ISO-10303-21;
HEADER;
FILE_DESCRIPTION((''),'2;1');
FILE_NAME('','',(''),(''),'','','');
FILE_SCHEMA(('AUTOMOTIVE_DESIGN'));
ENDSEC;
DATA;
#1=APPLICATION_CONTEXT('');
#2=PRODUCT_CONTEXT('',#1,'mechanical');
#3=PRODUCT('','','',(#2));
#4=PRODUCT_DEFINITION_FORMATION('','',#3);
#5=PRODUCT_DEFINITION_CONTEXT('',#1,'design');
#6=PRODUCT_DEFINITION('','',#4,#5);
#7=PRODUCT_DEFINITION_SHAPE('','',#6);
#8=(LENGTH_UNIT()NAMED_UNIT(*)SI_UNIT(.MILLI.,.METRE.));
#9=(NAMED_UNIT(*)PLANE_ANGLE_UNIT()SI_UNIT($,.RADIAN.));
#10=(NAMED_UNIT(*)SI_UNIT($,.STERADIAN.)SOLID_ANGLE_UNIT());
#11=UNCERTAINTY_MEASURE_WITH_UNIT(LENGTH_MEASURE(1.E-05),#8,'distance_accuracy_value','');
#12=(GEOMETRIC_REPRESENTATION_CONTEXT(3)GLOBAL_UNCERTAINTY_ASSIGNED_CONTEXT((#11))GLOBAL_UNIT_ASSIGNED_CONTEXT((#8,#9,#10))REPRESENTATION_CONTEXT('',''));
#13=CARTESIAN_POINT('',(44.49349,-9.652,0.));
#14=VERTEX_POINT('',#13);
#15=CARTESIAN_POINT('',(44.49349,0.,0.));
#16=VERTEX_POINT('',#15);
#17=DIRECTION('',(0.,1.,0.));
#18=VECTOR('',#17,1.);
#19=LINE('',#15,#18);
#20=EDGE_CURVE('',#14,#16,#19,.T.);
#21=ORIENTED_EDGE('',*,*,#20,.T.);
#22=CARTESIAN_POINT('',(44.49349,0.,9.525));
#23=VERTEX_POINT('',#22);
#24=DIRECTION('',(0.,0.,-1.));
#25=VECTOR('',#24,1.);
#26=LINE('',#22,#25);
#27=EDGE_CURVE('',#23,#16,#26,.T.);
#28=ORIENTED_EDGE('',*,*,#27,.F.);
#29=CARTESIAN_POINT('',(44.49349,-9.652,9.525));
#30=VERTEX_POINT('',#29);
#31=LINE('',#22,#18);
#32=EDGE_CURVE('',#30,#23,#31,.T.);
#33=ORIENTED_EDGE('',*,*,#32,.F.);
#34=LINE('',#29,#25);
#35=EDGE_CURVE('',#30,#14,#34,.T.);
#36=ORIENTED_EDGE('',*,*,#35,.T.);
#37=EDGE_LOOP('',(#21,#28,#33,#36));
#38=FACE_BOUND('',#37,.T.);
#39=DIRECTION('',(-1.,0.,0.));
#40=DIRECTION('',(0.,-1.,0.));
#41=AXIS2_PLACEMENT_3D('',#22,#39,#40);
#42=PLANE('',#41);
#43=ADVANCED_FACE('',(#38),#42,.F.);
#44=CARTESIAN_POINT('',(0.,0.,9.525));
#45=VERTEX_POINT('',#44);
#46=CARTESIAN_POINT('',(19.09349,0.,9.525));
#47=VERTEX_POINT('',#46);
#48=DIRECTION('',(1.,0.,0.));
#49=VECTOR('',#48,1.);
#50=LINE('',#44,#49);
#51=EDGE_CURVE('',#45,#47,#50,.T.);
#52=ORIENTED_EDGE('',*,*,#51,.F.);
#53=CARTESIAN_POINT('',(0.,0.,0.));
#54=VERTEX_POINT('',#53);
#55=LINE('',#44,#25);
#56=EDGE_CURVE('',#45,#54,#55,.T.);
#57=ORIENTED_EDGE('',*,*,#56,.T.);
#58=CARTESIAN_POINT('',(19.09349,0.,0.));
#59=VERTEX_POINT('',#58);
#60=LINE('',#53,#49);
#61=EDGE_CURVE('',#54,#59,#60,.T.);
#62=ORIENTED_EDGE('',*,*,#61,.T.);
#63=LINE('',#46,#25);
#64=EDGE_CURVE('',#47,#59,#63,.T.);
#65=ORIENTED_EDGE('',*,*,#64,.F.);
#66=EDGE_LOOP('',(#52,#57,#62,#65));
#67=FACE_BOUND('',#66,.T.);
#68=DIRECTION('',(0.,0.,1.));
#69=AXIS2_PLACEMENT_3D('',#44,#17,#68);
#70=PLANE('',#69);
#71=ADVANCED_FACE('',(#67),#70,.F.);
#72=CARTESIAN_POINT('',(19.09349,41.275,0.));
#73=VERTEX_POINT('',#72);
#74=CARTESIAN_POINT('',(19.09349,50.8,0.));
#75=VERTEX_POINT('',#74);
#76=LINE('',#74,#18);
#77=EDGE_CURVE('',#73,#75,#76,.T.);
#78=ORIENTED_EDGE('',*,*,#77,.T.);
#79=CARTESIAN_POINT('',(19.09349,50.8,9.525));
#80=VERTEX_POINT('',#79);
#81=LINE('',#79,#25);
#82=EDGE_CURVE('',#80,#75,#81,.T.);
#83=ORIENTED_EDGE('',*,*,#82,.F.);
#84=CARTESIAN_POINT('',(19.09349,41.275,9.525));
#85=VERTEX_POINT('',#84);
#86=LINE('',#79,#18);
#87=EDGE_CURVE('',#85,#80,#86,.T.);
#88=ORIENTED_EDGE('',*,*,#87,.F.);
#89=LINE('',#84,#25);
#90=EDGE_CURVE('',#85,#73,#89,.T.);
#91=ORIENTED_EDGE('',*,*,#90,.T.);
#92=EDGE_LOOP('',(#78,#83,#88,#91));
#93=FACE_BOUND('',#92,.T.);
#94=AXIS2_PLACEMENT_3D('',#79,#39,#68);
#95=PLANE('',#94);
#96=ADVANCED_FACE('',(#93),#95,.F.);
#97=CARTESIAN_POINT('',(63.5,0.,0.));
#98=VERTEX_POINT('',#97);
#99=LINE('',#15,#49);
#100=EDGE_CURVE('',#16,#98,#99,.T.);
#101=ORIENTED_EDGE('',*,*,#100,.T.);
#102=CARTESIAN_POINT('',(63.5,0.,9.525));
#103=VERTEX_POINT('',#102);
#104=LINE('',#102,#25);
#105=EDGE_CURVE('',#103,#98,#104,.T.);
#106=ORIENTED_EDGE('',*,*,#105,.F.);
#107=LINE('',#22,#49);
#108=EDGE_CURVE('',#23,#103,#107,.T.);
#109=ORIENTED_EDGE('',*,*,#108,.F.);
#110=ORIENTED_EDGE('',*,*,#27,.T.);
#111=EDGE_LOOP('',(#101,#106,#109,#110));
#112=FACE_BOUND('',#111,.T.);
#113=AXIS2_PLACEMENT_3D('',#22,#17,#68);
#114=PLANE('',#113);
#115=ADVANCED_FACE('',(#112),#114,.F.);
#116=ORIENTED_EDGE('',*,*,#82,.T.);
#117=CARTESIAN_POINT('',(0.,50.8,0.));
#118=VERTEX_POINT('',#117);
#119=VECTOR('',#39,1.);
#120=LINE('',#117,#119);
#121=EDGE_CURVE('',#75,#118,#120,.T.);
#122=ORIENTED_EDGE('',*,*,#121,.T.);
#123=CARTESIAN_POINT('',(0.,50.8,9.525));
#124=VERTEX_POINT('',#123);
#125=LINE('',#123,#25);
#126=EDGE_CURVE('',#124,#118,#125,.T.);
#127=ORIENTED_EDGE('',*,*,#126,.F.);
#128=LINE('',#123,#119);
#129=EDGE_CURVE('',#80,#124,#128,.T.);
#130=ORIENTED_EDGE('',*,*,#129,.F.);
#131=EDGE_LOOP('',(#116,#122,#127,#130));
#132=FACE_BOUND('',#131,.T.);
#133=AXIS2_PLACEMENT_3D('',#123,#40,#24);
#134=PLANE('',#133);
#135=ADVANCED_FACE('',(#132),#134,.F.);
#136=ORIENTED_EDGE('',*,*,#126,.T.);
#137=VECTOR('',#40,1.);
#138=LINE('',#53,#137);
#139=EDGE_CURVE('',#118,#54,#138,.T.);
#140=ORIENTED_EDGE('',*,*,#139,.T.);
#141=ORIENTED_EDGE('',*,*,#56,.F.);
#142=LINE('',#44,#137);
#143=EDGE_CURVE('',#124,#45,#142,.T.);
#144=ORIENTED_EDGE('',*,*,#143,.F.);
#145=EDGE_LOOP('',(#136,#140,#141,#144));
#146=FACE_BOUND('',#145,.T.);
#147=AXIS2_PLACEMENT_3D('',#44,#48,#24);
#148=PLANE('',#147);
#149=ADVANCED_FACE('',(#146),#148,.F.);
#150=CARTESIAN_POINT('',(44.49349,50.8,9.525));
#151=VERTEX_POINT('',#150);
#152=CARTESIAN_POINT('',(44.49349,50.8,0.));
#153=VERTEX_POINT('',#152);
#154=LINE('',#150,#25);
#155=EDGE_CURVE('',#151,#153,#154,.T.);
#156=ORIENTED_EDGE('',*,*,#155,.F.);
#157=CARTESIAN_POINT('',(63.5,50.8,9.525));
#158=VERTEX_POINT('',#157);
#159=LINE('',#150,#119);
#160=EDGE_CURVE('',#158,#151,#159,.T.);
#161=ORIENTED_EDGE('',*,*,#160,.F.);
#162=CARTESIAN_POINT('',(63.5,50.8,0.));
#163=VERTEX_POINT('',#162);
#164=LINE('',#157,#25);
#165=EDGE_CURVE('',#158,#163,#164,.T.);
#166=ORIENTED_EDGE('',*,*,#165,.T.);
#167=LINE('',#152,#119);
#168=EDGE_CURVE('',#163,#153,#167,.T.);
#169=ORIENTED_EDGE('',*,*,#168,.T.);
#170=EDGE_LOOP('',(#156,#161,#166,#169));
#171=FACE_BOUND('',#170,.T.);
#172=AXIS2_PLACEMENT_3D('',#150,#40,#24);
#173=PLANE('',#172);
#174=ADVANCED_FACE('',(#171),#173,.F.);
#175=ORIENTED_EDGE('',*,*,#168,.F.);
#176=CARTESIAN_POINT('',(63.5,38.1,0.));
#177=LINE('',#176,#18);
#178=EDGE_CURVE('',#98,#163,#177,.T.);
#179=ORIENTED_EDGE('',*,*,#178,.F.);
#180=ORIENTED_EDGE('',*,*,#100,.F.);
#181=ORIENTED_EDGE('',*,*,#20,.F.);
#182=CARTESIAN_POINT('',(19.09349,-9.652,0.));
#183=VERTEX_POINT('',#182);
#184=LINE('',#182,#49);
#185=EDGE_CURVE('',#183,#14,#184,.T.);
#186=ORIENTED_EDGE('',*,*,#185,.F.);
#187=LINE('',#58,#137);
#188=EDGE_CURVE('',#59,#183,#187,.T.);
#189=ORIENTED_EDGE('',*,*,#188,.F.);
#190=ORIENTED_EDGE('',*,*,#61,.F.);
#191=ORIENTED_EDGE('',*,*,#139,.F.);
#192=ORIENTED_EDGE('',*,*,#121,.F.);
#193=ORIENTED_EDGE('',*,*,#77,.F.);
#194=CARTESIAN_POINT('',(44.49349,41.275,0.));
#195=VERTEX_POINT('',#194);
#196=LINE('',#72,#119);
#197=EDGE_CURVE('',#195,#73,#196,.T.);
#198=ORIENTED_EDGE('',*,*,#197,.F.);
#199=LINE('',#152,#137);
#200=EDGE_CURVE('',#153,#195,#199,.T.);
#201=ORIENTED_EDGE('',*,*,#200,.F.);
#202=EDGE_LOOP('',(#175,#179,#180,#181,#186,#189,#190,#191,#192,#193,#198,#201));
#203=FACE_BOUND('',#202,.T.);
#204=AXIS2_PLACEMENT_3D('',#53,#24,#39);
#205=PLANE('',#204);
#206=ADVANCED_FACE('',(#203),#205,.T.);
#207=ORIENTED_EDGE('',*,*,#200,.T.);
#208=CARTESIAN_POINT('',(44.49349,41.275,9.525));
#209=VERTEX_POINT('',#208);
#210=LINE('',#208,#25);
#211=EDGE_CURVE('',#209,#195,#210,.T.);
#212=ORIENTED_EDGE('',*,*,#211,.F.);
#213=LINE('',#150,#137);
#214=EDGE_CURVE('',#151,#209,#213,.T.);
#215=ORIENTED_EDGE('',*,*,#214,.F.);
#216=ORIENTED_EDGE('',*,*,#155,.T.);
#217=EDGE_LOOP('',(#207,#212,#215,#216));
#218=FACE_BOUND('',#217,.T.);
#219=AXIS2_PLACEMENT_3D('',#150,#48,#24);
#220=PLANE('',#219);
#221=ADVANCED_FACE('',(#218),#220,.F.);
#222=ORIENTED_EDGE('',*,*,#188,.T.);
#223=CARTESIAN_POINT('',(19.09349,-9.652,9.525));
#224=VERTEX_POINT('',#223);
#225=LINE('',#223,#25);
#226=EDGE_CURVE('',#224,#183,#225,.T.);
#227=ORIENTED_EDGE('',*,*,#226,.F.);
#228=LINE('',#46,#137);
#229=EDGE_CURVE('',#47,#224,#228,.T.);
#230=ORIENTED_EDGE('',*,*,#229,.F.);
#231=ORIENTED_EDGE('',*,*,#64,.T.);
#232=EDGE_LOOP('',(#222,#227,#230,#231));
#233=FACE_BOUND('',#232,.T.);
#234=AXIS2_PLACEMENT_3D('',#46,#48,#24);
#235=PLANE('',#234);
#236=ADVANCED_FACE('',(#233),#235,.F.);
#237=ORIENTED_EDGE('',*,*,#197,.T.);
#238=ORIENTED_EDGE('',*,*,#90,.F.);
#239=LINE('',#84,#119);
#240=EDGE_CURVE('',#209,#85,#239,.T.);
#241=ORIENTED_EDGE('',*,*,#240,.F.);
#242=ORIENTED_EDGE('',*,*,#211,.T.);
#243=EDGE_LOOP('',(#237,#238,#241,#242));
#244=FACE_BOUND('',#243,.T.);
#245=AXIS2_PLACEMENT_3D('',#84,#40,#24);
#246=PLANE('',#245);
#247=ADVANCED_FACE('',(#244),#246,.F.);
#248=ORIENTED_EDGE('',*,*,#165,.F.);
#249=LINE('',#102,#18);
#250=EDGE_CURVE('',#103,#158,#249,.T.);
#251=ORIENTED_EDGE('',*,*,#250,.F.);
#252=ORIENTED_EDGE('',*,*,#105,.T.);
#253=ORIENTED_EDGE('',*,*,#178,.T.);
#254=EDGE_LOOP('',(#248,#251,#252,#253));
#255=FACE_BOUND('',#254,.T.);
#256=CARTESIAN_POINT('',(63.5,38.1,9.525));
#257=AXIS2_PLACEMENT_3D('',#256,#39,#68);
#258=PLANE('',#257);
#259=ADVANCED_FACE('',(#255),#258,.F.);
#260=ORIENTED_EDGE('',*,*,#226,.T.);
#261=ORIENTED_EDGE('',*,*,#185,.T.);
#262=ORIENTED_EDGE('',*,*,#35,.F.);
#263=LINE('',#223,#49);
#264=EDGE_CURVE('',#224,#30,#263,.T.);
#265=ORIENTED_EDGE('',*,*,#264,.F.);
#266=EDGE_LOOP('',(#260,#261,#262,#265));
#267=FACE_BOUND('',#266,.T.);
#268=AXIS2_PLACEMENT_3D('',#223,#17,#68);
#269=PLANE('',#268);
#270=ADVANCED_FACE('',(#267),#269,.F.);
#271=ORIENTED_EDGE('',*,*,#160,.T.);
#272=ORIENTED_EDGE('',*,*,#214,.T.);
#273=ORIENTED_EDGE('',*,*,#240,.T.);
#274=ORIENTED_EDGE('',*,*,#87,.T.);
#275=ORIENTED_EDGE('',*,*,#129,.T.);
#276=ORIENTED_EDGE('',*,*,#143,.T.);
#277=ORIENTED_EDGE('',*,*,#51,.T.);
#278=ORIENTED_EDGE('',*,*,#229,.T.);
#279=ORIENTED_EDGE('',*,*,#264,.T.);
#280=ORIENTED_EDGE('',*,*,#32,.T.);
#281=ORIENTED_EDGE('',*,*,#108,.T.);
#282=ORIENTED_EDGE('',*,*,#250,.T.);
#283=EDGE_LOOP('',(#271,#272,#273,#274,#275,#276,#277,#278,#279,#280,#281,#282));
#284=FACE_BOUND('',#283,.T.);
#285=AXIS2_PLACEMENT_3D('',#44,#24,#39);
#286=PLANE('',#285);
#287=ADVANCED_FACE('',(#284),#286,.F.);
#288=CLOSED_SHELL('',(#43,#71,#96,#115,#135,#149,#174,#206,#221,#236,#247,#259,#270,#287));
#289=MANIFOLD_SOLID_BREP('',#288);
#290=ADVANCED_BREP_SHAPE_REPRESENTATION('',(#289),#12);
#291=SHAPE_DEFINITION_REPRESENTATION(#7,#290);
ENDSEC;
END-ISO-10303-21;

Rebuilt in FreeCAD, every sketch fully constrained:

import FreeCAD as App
import Part
import Sketcher

V = App.Vector
Q = App.Units.Quantity

doc = App.newDocument("Part")
body = doc.addObject("PartDesign::Body", "Body")

# Sketch on XY plane
sketch1 = doc.addObject("Sketcher::SketchObject", "Sketch")
body.addObject(sketch1)
sketch1.AttachmentSupport = (doc.XY_Plane, [""])
sketch1.MapMode = "FlatFace"
sketch1.addGeometry([
    Part.LineSegment(V(0, 0, 0), V(19, 0, 0)),  # 0
    Part.LineSegment(V(19, 0, 0), V(19, -10, 0)),  # 1
    Part.LineSegment(V(19, -10, 0), V(44, -10, 0)),  # 2
    Part.LineSegment(V(44, -10, 0), V(44, 0, 0)),  # 3
    Part.LineSegment(V(44, 0, 0), V(64, 0, 0)),  # 4
    Part.LineSegment(V(64, 0, 0), V(64, 51, 0)),  # 5
    Part.LineSegment(V(64, 51, 0), V(44, 51, 0)),  # 6
    Part.LineSegment(V(44, 51, 0), V(44, 41, 0)),  # 7
    Part.LineSegment(V(44, 41, 0), V(19, 41, 0)),  # 8
    Part.LineSegment(V(19, 41, 0), V(19, 51, 0)),  # 9
    Part.LineSegment(V(19, 51, 0), V(0, 51, 0)),  # 10
    Part.LineSegment(V(0, 51, 0), V(0, 0, 0)),  # 11
], False)
sketch1.addConstraint([
    Sketcher.Constraint("Coincident", 0, 2, 1, 1),
    Sketcher.Constraint("Coincident", 1, 2, 2, 1),
    Sketcher.Constraint("Coincident", 2, 2, 3, 1),
    Sketcher.Constraint("Coincident", 3, 2, 4, 1),
    Sketcher.Constraint("Coincident", 4, 2, 5, 1),
    Sketcher.Constraint("Coincident", 5, 2, 6, 1),
    Sketcher.Constraint("Coincident", 6, 2, 7, 1),
    Sketcher.Constraint("Coincident", 7, 2, 8, 1),
    Sketcher.Constraint("Coincident", 8, 2, 9, 1),
    Sketcher.Constraint("Coincident", 9, 2, 10, 1),
    Sketcher.Constraint("Coincident", 10, 2, 11, 1),
    Sketcher.Constraint("Coincident", 11, 2, 0, 1),
    Sketcher.Constraint("Horizontal", 0),
    Sketcher.Constraint("Vertical", 1),
    Sketcher.Constraint("Horizontal", 2),
    Sketcher.Constraint("Vertical", 3),
    Sketcher.Constraint("Horizontal", 4),
    Sketcher.Constraint("Vertical", 5),
    Sketcher.Constraint("Horizontal", 6),
    Sketcher.Constraint("Vertical", 7),
    Sketcher.Constraint("Horizontal", 8),
    Sketcher.Constraint("Vertical", 9),
    Sketcher.Constraint("Horizontal", 10),
    Sketcher.Constraint("Vertical", 11),
    Sketcher.Constraint("Coincident", 11, 2, -1, 1),
    Sketcher.Constraint("PointOnObject", 3, 2, -1),
    Sketcher.Constraint("Horizontal", 6, 2, 9, 2),
    Sketcher.Constraint("Vertical", 3, 2, 6, 2),
    Sketcher.Constraint("Vertical", 1, 2, 8, 2),
    Sketcher.Constraint("DistanceX", 2, 1, 2, 2, Q("1 in")),
    Sketcher.Constraint("DistanceY", 5, 1, 5, 2, Q("2 in")),
    Sketcher.Constraint("DistanceY", 1, 2, 1, 1, Q("0.38 in")),
    Sketcher.Constraint("DistanceX", -1, 1, 4, 2, Q("2.5 in")),
    Sketcher.Constraint("DistanceY", 7, 2, 7, 1, Q("0.375 in")),
    Sketcher.Constraint("DistanceX", 0, 1, 0, 2, Q("19.09349 mm")),
])
pad1 = doc.addObject("PartDesign::Pad", "Pad")
body.addObject(pad1)
pad1.Profile = sketch1
pad1.Length = Q("0.375 in")

doc.recompute()
